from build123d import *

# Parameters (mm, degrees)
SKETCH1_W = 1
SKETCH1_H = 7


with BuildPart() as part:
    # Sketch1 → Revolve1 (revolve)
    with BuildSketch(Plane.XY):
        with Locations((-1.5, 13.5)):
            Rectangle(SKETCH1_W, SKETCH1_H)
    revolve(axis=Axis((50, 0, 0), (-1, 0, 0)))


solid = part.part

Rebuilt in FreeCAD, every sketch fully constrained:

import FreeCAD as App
import Part
import Sketcher

V = App.Vector


def add_polygon(sketch, points):
    """Adds a closed chain of lines whose ends are joined by coincident constraints."""
    first, n = sketch.GeometryCount, len(points)
    for a, b in zip(points, points[1:] + points[:1]):
        sketch.addGeometry(Part.LineSegment(App.Vector(*a, 0), App.Vector(*b, 0)), False)
    for i in range(n):
        sketch.addConstraint(Sketcher.Constraint("Coincident", first + i, 2, first + (i + 1) % n, 1))

doc = App.newDocument("Part")
body = doc.addObject("PartDesign::Body", "Body")

sketch1 = body.newObject("Sketcher::SketchObject", "Sketch")
sketch1.AttachmentSupport = (doc.getObject("XY_Plane"), [""])
sketch1.MapMode = "FlatFace"
add_polygon(sketch1, [(-2, 17), (-2, 10), (-1, 10), (-1, 17)])
sketch1.addConstraint([
    Sketcher.Constraint("Vertical", 0),
    Sketcher.Constraint("Horizontal", 1),
    Sketcher.Constraint("Vertical", 2),
    Sketcher.Constraint("Horizontal", 3),
    Sketcher.Constraint("DistanceX", 1, 1, 1, 2, 1.0),
    Sketcher.Constraint("DistanceY", 0, 2, 0, 1, 7.0),
    Sketcher.Constraint("DistanceX", 0, 2, -1, 1, 2.0),
    Sketcher.Constraint("DistanceY", -1, 1, 0, 2, 10.0),
])
revolution = body.newObject("PartDesign::Revolution", "Revolution")
revolution.Profile = sketch1
revolution.ReferenceAxis = (sketch1, ["H_Axis"])
revolution.Angle = 360

doc.recompute()
